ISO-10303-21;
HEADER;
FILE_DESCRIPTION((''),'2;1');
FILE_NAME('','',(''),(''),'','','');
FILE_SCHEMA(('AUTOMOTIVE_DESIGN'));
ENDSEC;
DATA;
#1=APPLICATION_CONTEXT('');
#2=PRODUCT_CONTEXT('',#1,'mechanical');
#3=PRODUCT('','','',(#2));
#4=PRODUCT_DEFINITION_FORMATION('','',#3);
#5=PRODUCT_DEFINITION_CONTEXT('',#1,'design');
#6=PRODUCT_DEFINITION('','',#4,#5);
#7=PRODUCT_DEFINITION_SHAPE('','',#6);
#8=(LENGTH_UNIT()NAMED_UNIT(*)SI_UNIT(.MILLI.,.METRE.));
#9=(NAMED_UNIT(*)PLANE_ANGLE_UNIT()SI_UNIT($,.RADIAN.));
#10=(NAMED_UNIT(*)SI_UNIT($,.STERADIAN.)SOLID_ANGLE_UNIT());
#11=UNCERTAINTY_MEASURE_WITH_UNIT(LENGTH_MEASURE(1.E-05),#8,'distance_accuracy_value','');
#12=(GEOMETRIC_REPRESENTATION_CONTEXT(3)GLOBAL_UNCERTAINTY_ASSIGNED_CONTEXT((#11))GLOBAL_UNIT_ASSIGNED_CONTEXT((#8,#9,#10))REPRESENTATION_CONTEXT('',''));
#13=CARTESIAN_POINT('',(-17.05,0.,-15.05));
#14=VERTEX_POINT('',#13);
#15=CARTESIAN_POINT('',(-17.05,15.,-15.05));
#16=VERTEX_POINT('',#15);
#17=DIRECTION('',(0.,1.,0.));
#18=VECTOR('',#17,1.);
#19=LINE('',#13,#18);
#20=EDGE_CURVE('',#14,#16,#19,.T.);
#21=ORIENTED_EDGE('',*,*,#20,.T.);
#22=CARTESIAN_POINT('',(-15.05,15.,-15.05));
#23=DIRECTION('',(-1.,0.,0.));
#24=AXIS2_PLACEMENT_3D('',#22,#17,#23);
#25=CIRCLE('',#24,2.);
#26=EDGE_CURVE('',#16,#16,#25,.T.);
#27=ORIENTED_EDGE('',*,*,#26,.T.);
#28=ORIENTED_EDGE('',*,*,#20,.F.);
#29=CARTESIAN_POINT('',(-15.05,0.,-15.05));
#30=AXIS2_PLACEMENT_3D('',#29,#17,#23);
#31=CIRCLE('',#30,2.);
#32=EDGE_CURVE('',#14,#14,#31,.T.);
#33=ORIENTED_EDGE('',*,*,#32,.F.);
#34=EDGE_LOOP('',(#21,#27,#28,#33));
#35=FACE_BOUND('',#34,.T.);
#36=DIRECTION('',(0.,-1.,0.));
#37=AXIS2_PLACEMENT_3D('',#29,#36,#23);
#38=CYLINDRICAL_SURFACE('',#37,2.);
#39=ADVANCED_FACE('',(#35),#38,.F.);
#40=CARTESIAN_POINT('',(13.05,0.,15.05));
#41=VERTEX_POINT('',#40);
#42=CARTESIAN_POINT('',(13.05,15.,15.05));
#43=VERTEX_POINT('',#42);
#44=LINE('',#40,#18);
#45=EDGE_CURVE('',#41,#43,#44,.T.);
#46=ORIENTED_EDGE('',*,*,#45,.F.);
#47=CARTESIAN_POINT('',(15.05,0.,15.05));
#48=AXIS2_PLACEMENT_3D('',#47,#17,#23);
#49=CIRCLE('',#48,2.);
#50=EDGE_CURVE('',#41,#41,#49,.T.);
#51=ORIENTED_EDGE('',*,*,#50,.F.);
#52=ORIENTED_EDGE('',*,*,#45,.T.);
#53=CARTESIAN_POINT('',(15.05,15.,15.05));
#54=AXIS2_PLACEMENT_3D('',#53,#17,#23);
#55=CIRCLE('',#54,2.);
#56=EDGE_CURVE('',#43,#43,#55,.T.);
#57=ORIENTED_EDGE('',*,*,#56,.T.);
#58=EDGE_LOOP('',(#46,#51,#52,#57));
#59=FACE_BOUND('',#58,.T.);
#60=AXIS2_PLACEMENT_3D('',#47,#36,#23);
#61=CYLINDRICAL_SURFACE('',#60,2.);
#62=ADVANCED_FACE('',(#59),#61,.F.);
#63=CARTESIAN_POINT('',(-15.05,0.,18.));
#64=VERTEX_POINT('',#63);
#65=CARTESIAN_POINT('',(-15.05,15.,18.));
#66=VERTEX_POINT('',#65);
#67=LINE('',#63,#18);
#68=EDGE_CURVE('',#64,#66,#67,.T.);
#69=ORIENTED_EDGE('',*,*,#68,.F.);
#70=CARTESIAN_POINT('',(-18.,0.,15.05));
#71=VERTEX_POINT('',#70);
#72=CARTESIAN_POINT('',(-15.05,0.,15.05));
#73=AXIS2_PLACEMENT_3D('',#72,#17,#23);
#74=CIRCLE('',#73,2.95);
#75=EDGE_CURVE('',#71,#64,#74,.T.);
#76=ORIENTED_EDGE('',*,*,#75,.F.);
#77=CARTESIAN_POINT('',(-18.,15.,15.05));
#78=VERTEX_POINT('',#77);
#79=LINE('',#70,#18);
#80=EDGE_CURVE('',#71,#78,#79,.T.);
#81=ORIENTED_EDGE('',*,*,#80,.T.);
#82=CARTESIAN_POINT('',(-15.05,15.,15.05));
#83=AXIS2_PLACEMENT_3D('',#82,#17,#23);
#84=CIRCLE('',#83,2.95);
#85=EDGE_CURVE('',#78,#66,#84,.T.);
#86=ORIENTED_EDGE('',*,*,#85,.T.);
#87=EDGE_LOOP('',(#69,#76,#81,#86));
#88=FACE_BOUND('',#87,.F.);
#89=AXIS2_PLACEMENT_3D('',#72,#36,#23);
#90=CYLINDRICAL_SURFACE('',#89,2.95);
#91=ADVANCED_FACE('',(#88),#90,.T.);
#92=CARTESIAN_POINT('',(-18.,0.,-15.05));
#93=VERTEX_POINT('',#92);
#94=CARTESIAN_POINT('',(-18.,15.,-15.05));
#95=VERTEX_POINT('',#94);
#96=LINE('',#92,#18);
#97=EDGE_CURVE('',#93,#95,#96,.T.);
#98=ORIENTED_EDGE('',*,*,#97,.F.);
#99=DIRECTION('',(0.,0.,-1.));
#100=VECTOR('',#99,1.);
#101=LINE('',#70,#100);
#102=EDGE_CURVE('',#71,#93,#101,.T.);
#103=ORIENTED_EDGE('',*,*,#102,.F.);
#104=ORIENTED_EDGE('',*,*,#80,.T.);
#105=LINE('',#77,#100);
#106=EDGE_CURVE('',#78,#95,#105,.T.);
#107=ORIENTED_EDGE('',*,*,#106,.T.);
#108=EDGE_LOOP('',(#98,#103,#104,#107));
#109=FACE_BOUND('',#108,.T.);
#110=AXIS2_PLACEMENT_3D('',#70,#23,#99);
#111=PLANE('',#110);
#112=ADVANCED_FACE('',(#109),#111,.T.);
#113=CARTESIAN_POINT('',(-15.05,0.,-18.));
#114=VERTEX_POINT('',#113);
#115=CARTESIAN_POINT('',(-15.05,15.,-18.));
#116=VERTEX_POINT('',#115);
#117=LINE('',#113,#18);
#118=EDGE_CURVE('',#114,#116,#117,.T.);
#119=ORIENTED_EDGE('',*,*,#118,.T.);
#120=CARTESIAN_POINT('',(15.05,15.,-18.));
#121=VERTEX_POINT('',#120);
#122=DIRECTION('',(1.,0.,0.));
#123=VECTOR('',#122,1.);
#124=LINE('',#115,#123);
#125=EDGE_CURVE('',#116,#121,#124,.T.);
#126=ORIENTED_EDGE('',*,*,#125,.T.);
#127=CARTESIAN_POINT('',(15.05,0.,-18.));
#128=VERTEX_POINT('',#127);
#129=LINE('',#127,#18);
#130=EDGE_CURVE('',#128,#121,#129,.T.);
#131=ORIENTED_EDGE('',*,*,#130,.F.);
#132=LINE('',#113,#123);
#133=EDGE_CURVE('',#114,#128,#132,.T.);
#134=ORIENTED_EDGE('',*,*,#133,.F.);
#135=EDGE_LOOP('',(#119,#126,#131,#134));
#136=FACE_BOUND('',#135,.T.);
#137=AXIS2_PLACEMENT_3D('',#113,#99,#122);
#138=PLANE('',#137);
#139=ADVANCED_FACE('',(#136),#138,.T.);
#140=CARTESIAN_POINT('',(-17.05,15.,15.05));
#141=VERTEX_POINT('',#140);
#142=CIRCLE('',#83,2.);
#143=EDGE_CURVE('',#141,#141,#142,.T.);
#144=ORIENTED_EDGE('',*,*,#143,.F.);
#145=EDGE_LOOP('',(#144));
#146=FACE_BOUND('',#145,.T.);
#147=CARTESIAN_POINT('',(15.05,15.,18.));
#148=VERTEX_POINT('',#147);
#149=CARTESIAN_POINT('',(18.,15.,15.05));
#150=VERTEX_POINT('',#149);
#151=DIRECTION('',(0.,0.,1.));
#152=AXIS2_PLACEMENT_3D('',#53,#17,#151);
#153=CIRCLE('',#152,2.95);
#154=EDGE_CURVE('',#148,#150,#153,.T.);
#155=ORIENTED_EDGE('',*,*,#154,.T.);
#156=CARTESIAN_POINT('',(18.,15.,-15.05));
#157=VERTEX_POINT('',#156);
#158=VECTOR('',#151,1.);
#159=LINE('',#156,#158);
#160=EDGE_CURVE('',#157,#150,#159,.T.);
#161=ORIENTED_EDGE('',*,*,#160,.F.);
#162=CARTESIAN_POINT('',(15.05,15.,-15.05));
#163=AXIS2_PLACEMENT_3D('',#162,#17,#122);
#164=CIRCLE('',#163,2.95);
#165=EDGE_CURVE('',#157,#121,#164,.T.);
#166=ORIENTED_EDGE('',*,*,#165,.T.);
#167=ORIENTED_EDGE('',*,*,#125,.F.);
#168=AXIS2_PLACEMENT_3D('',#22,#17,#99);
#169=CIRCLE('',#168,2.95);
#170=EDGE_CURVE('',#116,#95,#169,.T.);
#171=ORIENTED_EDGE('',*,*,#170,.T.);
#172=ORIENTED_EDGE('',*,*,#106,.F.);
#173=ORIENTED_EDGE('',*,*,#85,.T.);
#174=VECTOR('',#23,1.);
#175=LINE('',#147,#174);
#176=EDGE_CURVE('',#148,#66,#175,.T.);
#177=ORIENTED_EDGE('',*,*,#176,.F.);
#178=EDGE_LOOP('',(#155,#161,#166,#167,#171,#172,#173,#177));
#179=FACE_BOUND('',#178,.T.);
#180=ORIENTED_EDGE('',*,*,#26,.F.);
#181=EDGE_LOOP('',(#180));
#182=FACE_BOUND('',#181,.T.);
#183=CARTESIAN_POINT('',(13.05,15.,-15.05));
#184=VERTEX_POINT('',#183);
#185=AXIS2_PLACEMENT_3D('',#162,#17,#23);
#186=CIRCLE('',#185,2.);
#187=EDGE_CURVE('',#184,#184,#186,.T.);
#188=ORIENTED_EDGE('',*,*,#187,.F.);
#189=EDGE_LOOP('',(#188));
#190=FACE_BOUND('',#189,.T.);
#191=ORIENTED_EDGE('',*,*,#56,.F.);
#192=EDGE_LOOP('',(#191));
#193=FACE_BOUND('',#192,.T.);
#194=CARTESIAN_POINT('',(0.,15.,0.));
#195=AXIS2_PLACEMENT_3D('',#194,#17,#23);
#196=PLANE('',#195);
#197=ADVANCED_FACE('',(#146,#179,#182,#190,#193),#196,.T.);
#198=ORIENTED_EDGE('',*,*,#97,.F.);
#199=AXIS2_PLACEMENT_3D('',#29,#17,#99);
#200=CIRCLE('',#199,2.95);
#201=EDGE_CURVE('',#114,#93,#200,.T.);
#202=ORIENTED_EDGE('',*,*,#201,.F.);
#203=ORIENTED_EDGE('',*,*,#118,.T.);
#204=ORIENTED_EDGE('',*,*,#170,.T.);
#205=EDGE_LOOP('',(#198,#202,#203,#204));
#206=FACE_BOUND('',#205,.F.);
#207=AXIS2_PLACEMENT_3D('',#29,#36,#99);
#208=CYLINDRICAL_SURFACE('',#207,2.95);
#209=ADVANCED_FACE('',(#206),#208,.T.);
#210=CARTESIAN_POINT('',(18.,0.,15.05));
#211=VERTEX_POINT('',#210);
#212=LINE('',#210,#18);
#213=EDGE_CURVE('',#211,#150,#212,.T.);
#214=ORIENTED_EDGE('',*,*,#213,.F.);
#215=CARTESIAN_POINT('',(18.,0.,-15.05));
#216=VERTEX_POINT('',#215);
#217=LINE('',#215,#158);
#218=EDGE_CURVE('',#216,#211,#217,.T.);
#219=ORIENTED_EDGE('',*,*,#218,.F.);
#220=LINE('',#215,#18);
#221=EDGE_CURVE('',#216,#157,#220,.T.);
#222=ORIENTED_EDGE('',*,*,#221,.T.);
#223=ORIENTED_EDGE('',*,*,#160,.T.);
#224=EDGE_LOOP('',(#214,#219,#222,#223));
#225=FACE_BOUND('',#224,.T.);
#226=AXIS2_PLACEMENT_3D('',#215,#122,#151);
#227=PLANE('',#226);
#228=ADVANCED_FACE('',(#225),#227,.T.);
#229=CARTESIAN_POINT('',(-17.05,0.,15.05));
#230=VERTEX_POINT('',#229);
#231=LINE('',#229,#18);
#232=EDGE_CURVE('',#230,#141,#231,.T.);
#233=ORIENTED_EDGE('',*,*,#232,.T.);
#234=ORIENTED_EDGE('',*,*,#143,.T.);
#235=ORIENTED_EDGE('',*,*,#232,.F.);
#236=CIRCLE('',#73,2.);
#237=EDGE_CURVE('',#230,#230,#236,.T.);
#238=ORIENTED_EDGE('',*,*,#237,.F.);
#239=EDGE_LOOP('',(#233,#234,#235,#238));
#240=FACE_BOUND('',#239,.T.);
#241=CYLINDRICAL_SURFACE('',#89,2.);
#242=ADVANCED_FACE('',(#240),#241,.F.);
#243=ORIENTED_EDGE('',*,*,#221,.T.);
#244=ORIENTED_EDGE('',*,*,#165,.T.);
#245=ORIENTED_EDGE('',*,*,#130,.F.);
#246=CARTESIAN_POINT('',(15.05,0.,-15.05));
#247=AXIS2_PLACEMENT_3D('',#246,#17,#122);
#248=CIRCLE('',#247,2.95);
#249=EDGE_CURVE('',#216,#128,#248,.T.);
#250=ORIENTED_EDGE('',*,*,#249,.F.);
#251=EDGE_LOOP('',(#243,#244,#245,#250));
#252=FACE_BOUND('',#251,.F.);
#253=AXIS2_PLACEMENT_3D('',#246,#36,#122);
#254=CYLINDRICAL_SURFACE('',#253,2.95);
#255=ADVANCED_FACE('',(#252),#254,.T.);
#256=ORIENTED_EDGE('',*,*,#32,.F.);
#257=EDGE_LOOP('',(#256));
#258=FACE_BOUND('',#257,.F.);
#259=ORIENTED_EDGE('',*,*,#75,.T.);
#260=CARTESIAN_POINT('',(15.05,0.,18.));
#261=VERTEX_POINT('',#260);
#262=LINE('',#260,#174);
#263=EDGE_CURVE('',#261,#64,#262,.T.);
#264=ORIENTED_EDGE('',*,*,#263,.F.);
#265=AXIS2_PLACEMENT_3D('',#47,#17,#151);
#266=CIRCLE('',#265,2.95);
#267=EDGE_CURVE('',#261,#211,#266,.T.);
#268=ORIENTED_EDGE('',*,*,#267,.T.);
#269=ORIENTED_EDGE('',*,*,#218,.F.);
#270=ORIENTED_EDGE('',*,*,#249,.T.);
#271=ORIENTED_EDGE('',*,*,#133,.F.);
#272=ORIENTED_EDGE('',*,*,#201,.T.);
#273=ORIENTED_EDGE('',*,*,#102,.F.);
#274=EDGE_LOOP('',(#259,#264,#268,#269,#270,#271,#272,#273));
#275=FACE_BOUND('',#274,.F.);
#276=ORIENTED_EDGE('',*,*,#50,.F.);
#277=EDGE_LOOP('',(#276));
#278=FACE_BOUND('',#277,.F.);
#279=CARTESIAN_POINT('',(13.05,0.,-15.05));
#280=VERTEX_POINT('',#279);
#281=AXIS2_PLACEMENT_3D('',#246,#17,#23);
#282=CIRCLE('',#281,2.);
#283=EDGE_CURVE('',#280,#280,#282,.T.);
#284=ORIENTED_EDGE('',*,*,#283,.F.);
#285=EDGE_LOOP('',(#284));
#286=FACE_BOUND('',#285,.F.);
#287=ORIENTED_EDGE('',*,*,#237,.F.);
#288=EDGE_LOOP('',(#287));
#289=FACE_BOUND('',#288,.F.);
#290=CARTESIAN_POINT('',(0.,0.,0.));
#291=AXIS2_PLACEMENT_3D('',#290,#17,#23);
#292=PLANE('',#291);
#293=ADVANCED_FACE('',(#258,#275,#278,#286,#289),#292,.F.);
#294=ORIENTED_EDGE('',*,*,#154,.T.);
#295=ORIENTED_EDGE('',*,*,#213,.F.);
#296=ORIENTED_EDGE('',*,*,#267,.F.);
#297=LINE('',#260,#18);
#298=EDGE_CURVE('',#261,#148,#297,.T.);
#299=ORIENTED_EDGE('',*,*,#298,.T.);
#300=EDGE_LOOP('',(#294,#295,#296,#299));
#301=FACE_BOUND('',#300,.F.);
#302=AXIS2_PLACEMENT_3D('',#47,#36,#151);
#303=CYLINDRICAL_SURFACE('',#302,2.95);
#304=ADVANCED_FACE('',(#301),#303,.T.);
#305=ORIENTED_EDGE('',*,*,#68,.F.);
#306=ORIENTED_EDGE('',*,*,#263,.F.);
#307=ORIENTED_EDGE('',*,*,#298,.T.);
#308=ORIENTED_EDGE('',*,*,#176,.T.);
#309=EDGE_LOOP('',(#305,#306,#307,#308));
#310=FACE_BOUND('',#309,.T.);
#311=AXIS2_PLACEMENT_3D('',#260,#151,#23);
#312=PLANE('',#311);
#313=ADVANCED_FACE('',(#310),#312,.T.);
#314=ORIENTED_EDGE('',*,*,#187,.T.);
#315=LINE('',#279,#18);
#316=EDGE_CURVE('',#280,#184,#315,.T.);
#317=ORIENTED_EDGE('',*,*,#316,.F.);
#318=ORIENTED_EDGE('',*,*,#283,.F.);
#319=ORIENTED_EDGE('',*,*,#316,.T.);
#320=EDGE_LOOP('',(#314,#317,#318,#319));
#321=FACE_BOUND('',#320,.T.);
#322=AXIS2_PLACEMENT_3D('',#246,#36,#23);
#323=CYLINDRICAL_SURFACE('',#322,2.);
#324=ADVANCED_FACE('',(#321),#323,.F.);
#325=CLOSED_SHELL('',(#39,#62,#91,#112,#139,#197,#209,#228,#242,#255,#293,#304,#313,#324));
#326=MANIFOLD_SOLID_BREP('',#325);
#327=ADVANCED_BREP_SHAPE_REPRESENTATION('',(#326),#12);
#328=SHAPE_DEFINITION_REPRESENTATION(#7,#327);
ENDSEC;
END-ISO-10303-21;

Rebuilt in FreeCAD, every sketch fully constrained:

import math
import FreeCAD as App
import Part
import Sketcher
Q = App.Units.Quantity

doc = App.newDocument("Part")
body = doc.addObject("PartDesign::Body", "Body")

# Sketch on XZ plane
sketch1 = doc.addObject("Sketcher::SketchObject", "Sketch")
body.addObject(sketch1)
sketch1.AttachmentSupport = (doc.XZ_Plane, [""])
sketch1.MapMode = "FlatFace"
sketch1.addGeometry([
    Part.LineSegment(App.Vector(-15.1, 18, 0), App.Vector(15.1, 18, 0)),  # 0
    Part.ArcOfCircle(Part.Circle(App.Vector(15.1, 15.1, 0), App.Vector(0, 0, 1), 2.9), math.radians(0), math.radians(90)),  # 1
    Part.LineSegment(App.Vector(18, 15.1, 0), App.Vector(18, -15.1, 0)),  # 2
    Part.ArcOfCircle(Part.Circle(App.Vector(15.1, -15.1, 0), App.Vector(0, 0, 1), 2.9), math.radians(-90), math.radians(0)),  # 3
    Part.LineSegment(App.Vector(15.1, -18, 0), App.Vector(-15.1, -18, 0)),  # 4
    Part.ArcOfCircle(Part.Circle(App.Vector(-15.1, -15.1, 0), App.Vector(0, 0, 1), 2.9), math.radians(180), math.radians(270)),  # 5
    Part.LineSegment(App.Vector(-18, -15.1, 0), App.Vector(-18, 15.1, 0)),  # 6
    Part.ArcOfCircle(Part.Circle(App.Vector(-15.1, 15.1, 0), App.Vector(0, 0, 1), 2.9), math.radians(90), math.radians(180)),  # 7
    Part.Circle(App.Vector(15.1, -15.1, 0), App.Vector(0, 0, 1), 2),  # 8
    Part.Circle(App.Vector(-15.1, -15.1, 0), App.Vector(0, 0, 1), 2),  # 9
    Part.Circle(App.Vector(15.1, 15.1, 0), App.Vector(0, 0, 1), 2),  # 10
    Part.Circle(App.Vector(-15.1, 15.1, 0), App.Vector(0, 0, 1), 2),  # 11
], False)
sketch1.addConstraint([
    Sketcher.Constraint("Tangent", 0, 2, 1, 2),
    Sketcher.Constraint("Tangent", 1, 1, 2, 1),
    Sketcher.Constraint("Tangent", 2, 2, 3, 2),
    Sketcher.Constraint("Tangent", 3, 1, 4, 1),
    Sketcher.Constraint("Tangent", 4, 2, 5, 2),
    Sketcher.Constraint("Tangent", 5, 1, 6, 1),
    Sketcher.Constraint("Tangent", 6, 2, 7, 2),
    Sketcher.Constraint("Tangent", 7, 1, 0, 1),
    Sketcher.Constraint("Horizontal", 0),
    Sketcher.Constraint("Vertical", 2),
    Sketcher.Constraint("Horizontal", 4),
    Sketcher.Constraint("Vertical", 6),
    Sketcher.Constraint("Coincident", 8, 3, 3, 3),
    Sketcher.Constraint("Coincident", 9, 3, 5, 3),
    Sketcher.Constraint("Coincident", 10, 3, 1, 3),
    Sketcher.Constraint("Coincident", 11, 3, 7, 3),
    Sketcher.Constraint("Equal", 1, 3),
    Sketcher.Constraint("Equal", 3, 5),
    Sketcher.Constraint("Equal", 5, 7),
    Sketcher.Constraint("Equal", 8, 9),
    Sketcher.Constraint("Equal", 9, 10),
    Sketcher.Constraint("Equal", 10, 11),
    Sketcher.Constraint("Symmetric", 1, 3, 5, 3, -1, 1),
    Sketcher.Constraint("Equal", 4, 2),
    Sketcher.Constraint("Diameter", 8, Q("4 mm")),
    Sketcher.Constraint("Radius", 1, Q("2.95 mm")),
    Sketcher.Constraint("DistanceX", -1, 1, 1, 3, Q("15.05 mm")),
])
pad1 = doc.addObject("PartDesign::Pad", "Pad")
body.addObject(pad1)
pad1.Profile = sketch1
pad1.Length = 15
pad1.Reversed = True

doc.recompute()
